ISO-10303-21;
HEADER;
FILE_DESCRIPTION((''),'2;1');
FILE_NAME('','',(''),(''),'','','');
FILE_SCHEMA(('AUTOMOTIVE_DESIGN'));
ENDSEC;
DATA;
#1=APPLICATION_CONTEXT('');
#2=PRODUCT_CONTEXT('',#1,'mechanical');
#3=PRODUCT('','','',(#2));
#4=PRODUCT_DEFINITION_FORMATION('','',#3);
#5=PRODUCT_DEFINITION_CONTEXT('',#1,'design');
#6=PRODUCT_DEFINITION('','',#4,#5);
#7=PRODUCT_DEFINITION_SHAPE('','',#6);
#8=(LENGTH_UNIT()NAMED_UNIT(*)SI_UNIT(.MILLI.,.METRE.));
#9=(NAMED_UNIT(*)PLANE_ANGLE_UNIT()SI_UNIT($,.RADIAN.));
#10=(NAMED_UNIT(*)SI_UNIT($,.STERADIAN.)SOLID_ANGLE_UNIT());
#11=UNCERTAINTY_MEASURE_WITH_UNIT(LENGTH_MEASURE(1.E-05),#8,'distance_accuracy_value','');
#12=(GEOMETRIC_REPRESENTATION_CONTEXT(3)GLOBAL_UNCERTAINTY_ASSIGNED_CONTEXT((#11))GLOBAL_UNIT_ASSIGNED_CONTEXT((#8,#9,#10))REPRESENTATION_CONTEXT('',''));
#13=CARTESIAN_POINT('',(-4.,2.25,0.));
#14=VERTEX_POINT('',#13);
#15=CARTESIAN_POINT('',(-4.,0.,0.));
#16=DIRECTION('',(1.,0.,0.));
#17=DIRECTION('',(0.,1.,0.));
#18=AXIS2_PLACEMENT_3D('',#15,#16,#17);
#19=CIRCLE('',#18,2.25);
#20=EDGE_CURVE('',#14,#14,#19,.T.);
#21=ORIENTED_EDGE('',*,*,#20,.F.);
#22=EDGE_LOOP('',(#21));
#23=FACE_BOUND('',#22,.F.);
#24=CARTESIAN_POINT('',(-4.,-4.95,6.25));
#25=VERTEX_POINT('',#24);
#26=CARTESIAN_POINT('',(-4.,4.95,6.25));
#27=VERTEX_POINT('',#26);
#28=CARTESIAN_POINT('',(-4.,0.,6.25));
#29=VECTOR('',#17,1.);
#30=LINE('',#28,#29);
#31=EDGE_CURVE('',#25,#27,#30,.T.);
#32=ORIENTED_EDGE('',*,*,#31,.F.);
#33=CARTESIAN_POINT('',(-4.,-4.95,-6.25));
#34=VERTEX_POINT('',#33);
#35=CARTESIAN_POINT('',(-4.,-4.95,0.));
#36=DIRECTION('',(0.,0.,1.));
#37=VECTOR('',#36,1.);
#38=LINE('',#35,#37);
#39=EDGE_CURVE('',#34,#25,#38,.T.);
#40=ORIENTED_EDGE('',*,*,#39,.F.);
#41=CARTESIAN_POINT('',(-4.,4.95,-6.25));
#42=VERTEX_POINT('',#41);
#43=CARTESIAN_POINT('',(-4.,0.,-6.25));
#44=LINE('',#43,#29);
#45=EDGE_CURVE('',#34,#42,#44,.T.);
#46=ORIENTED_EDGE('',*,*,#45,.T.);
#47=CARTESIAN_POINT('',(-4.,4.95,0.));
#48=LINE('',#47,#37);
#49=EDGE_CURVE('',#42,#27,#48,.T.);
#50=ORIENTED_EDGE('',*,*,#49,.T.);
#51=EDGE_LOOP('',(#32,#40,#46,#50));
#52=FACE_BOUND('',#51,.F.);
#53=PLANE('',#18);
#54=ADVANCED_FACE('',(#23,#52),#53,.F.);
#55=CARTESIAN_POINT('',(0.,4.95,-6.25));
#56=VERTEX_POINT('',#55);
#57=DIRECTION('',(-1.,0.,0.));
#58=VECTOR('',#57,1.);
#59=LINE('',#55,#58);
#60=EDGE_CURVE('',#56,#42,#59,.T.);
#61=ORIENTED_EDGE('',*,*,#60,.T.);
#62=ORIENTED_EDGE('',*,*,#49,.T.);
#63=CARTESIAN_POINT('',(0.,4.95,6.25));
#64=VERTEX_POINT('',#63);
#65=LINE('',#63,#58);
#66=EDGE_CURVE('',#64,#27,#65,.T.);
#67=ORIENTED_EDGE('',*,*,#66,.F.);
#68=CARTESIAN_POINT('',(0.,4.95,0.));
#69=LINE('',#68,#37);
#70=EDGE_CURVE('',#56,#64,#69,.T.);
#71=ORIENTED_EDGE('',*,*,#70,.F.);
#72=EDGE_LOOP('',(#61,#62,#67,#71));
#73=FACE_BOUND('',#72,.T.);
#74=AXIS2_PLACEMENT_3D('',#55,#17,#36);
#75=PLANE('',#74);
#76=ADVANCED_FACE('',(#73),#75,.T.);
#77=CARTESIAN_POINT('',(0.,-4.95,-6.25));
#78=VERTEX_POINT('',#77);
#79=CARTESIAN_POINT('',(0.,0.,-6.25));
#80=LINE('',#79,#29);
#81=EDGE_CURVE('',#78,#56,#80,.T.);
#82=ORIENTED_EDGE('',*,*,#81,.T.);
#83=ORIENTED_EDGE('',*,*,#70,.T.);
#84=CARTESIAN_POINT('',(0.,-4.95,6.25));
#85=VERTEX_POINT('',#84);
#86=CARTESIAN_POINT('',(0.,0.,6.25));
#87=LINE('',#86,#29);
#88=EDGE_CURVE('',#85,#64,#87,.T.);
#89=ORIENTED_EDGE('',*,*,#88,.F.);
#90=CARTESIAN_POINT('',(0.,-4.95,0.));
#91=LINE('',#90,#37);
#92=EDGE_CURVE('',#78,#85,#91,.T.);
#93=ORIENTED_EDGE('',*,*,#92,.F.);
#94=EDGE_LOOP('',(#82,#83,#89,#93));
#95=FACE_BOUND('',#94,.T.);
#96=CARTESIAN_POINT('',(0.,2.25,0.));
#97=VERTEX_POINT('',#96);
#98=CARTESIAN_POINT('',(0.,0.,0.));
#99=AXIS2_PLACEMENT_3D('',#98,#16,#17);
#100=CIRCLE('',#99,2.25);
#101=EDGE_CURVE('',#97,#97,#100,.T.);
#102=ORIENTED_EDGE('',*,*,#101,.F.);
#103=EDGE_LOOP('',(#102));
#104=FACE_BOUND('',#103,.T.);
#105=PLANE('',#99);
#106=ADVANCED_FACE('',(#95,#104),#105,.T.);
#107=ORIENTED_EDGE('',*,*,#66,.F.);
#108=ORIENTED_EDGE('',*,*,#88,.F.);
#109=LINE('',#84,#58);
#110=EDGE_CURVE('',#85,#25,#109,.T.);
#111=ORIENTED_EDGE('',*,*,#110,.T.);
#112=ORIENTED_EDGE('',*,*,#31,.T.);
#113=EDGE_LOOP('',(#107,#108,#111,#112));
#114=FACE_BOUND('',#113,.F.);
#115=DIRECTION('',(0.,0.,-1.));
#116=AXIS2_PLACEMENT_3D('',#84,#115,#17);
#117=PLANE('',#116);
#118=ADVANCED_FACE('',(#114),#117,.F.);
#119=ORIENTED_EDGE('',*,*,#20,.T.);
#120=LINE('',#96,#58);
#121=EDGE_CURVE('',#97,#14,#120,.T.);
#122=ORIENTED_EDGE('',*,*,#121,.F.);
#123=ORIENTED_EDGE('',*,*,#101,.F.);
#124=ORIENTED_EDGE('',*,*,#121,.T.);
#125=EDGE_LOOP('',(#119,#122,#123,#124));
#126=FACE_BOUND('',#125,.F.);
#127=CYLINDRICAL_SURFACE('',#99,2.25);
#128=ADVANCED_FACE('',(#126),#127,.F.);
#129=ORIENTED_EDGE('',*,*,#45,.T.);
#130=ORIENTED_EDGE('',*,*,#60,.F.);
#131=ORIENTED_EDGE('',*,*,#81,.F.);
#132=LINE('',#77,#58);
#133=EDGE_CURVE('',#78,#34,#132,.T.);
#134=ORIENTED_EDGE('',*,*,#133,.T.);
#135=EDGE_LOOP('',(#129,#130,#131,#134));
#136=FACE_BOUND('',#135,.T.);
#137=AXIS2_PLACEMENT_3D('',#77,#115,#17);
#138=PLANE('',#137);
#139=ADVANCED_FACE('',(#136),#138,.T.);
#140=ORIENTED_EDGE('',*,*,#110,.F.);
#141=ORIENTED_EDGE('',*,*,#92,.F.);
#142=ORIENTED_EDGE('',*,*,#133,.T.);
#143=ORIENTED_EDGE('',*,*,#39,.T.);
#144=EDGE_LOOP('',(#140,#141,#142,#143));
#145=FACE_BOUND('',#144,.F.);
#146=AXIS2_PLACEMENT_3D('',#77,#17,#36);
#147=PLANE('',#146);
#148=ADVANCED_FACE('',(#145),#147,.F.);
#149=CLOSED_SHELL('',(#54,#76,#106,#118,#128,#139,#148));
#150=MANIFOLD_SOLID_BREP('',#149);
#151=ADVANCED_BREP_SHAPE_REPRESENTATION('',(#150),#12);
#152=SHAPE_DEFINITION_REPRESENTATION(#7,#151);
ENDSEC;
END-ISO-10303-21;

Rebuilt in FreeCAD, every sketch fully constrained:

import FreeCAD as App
import Part
import Sketcher
Q = App.Units.Quantity

doc = App.newDocument("Part")
body = doc.addObject("PartDesign::Body", "Body")

# Sketch on YZ plane
sketch1 = doc.addObject("Sketcher::SketchObject", "Sketch")
body.addObject(sketch1)
sketch1.AttachmentSupport = (doc.YZ_Plane, [""])
sketch1.MapMode = "FlatFace"
sketch1.addGeometry([
    Part.LineSegment(App.Vector(-4.95, 6.25, 0), App.Vector(-4.95, -6.25, 0)),  # 0
    Part.LineSegment(App.Vector(-4.95, -6.25, 0), App.Vector(4.95, -6.25, 0)),  # 1
    Part.LineSegment(App.Vector(4.95, -6.25, 0), App.Vector(4.95, 6.25, 0)),  # 2
    Part.LineSegment(App.Vector(4.95, 6.25, 0), App.Vector(-4.95, 6.25, 0)),  # 3
    Part.Circle(App.Vector(0, 0, 0), App.Vector(0, 0, 1), 2.25),  # 4
], False)
sketch1.addConstraint([
    Sketcher.Constraint("Coincident", 0, 2, 1, 1),
    Sketcher.Constraint("Coincident", 1, 2, 2, 1),
    Sketcher.Constraint("Coincident", 2, 2, 3, 1),
    Sketcher.Constraint("Coincident", 3, 2, 0, 1),
    Sketcher.Constraint("Vertical", 0),
    Sketcher.Constraint("Horizontal", 1),
    Sketcher.Constraint("Vertical", 2),
    Sketcher.Constraint("Horizontal", 3),
    Sketcher.Constraint("Coincident", 4, 3, -1, 1),
    Sketcher.Constraint("Symmetric", 0, 2, 2, 2, -1, 1),
    Sketcher.Constraint("Diameter", 4, Q("4.5 mm")),
    Sketcher.Constraint("DistanceX", 1, 1, 1, 2, Q("9.9 mm")),
    Sketcher.Constraint("DistanceY", 0, 2, 0, 1, Q("12.5 mm")),
])
pad1 = doc.addObject("PartDesign::Pad", "Pad")
body.addObject(pad1)
pad1.Profile = sketch1
pad1.Length = 4
pad1.Reversed = True

doc.recompute()
